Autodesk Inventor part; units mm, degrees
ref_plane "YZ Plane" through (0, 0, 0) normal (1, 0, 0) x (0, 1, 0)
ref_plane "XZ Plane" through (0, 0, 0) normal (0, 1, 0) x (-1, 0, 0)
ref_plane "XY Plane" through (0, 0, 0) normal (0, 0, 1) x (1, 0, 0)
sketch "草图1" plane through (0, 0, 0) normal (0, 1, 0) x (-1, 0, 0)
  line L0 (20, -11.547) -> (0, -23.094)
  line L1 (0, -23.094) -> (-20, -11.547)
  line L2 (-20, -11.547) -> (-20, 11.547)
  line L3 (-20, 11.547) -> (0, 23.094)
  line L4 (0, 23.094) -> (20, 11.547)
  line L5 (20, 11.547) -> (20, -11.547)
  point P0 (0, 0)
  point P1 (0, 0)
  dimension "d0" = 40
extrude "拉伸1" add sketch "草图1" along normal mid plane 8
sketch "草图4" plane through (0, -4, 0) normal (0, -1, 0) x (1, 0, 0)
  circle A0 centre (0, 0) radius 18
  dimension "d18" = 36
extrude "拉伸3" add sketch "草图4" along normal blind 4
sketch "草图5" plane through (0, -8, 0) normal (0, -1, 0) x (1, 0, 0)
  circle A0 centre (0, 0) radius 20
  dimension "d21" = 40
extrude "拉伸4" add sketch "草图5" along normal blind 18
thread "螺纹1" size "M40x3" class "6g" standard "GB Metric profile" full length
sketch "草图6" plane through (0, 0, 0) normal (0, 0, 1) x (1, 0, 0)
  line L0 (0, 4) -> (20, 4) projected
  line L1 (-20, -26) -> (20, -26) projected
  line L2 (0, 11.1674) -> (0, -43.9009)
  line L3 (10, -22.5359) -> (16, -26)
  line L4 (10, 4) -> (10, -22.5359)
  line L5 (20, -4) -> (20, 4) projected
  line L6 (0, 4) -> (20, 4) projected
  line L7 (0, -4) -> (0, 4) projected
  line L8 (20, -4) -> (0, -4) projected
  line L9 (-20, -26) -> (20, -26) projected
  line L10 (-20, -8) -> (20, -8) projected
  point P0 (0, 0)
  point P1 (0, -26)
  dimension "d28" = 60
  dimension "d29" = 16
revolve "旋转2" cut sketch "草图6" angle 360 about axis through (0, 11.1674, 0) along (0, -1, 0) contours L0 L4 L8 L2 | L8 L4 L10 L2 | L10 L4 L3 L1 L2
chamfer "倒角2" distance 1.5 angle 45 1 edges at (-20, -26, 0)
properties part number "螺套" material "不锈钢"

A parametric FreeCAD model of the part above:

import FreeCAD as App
import Part
import Sketcher
Q = App.Units.Quantity


def edges_at(feature, points):
    """Names of the edges that pass closest to the given points."""
    edges = feature.Shape.Edges
    near = lambda p: min(range(len(edges)), key=lambda i: edges[i].distToShape(Part.Vertex(*p))[0])
    return sorted({f"Edge{near(p) + 1}" for p in points})


def add_polygon(sketch, points):
    """Adds a closed chain of lines whose ends are joined by coincident constraints."""
    first, n = sketch.GeometryCount, len(points)
    for a, b in zip(points, points[1:] + points[:1]):
        sketch.addGeometry(Part.LineSegment(App.Vector(*a, 0), App.Vector(*b, 0)), False)
    for i in range(n):
        sketch.addConstraint(Sketcher.Constraint("Coincident", first + i, 2, first + (i + 1) % n, 1))

doc = App.newDocument("Part")
body = doc.addObject("PartDesign::Body", "Body")

# Sketch on XZ plane
sketch1 = doc.addObject("Sketcher::SketchObject", "Sketch")
body.addObject(sketch1)
sketch1.AttachmentSupport = (doc.XZ_Plane, [""])
sketch1.MapMode = "FlatFace"
add_polygon(sketch1, [(0, -23), (-20, -12), (-20, 12), (0, 23), (20, 12), (20, -12)])  # lines 0-5
sketch1.addConstraint([
    Sketcher.Constraint("Vertical", 1),
    Sketcher.Constraint("Vertical", 4),
    Sketcher.Constraint("Symmetric", 0, 2, 3, 2, -1, 1),
    Sketcher.Constraint("Symmetric", 2, 2, 5, 2, -1, 1),
    Sketcher.Constraint("PointOnObject", 2, 2, -2),
    Sketcher.Constraint("Parallel", 2, 5),
    Sketcher.Constraint("Horizontal", 1, 2, 3, 2),
    Sketcher.Constraint("DistanceX", 1, 2, 3, 2, 40.0),
    Sketcher.Constraint("Angle", 0, Q("150 deg")),
    Sketcher.Constraint("DistanceY", 1, 1, 1, 2, 23.094),
])
pad1 = doc.addObject("PartDesign::Pad", "Pad")
body.addObject(pad1)
pad1.Profile = sketch1
pad1.Length = 8
pad1.Midplane = True

# Sketch on XZ plane
sketch2 = doc.addObject("Sketcher::SketchObject", "Sketch001")
body.addObject(sketch2)
sketch2.AttachmentSupport = (doc.XZ_Plane, [""])
sketch2.MapMode = "FlatFace"
sketch2.AttachmentOffset = App.Placement(App.Vector(0, 0, 4), App.Rotation())
sketch2.addGeometry(Part.Circle(App.Vector(0, 0, 0), App.Vector(0, 0, 1), 18), False)
sketch2.addConstraint([
    Sketcher.Constraint("Coincident", 0, 3, -1, 1),
    Sketcher.Constraint("Diameter", 0, 36.0),
])
pad2 = doc.addObject("PartDesign::Pad", "Pad001")
body.addObject(pad2)
pad2.Profile = sketch2
pad2.Length = 4

# Sketch on XZ plane
sketch3 = doc.addObject("Sketcher::SketchObject", "Sketch002")
body.addObject(sketch3)
sketch3.AttachmentSupport = (doc.XZ_Plane, [""])
sketch3.MapMode = "FlatFace"
sketch3.AttachmentOffset = App.Placement(App.Vector(0, 0, 8), App.Rotation())
sketch3.addGeometry(Part.Circle(App.Vector(0, 0, 0), App.Vector(0, 0, 1), 20), False)
sketch3.addConstraint([
    Sketcher.Constraint("Coincident", 0, 3, -1, 1),
    Sketcher.Constraint("Diameter", 0, 40.0),
])
pad3 = doc.addObject("PartDesign::Pad", "Pad002")
body.addObject(pad3)
pad3.Profile = sketch3
pad3.Length = 18

# Sketch on XY plane
sketch4 = doc.addObject("Sketcher::SketchObject", "Sketch003")
body.addObject(sketch4)
sketch4.AttachmentSupport = (doc.XY_Plane, [""])
sketch4.MapMode = "FlatFace"
add_polygon(sketch4, [(10, 4), (0, 4), (0, -26), (16, -26), (10, -23)])  # lines 0-4
sketch4.addConstraint([
    Sketcher.Constraint("Horizontal", 0),
    Sketcher.Constraint("Vertical", 1),
    Sketcher.Constraint("Horizontal", 2),
    Sketcher.Constraint("Vertical", 4),
    Sketcher.Constraint("PointOnObject", 0, 2, -2),
    Sketcher.Constraint("DistanceX", 2, 1, 2, 2, 16.0),
    Sketcher.Constraint("DistanceX", 0, 2, 0, 1, 10.0),
    Sketcher.Constraint("DistanceY", 1, 2, 1, 1, 30.0),
    Sketcher.Constraint("Angle", 3, Q("150 deg")),
    Sketcher.Constraint("DistanceY", -1, 1, 0, 2, 4.0),
])
groove = doc.addObject("PartDesign::Groove", "Groove")
body.addObject(groove)
groove.Profile = sketch4
groove.ReferenceAxis = (sketch4, ["V_Axis"])
groove.Angle = 360
doc.recompute()

chamfer = doc.addObject("PartDesign::Chamfer", "Chamfer")
body.addObject(chamfer)
chamfer.Base = (groove, edges_at(groove, [(-20, -26, 0)]))
chamfer.Size = 1.5

doc.recompute()
